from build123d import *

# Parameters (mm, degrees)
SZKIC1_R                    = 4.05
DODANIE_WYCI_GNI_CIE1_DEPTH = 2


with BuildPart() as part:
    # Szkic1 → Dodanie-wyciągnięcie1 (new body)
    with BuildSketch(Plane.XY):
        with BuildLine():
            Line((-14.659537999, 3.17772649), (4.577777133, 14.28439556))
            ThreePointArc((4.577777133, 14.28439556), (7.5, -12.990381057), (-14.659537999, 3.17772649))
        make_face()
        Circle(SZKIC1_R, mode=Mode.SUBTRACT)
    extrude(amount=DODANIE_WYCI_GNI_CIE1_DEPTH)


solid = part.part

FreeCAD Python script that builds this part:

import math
import FreeCAD as App
import Part
import Sketcher
Q = App.Units.Quantity

doc = App.newDocument("Part")
params = doc.addObject("Spreadsheet::Sheet", "Params")
for row, (alias, value) in enumerate([
    ("sketch1_radius", "15 mm"),
    ("sketch1_diameter", "8.1 mm"),
    ("pad1_length", "2 mm"),
], start=1):
    params.set(f"A{row}", alias)
    params.set(f"B{row}", "=" + value)
    params.setAlias(f"B{row}", alias)

body = doc.addObject("PartDesign::Body", "Body")

# Sketch on XY plane
sketch1 = body.newObject("Sketcher::SketchObject", "Sketch")
sketch1.AttachmentSupport = (doc.getObject("XY_Plane"), [""])
sketch1.MapMode = "FlatFace"
sketch1.addGeometry([
    Part.LineSegment(App.Vector(4.6, 14.3, 0), App.Vector(-14.7, 3.2, 0)),
    Part.ArcOfCircle(Part.Circle(App.Vector(0, 0, 0), App.Vector(0, 0, 1), 15), math.radians(168), math.radians(432)),
    Part.Circle(App.Vector(0, 0, 0), App.Vector(0, 0, 1), 4),
], False)
sketch1.addConstraint([
    Sketcher.Constraint("Coincident", 0, 1, 1, 2),
    Sketcher.Constraint("Coincident", 1, 1, 0, 2),
    Sketcher.Constraint("Coincident", 1, 3, -1, 1),
    Sketcher.Constraint("Coincident", 2, 3, -1, 1),
    Sketcher.Constraint("Radius", 1, 15.0),
    Sketcher.Constraint("Diameter", 2, 8.1),
    Sketcher.Constraint("Angle", 0, Q("-150 deg")),
    Sketcher.Constraint("Distance", 0, 22.213338),
])
sketch1.setExpression("Constraints[4]", "Params.sketch1_radius")
sketch1.setExpression("Constraints[5]", "Params.sketch1_diameter")
pad1 = body.newObject("PartDesign::Pad", "Pad")
pad1.Profile = sketch1
pad1.setExpression("Length", "Params.pad1_length")

doc.recompute()
